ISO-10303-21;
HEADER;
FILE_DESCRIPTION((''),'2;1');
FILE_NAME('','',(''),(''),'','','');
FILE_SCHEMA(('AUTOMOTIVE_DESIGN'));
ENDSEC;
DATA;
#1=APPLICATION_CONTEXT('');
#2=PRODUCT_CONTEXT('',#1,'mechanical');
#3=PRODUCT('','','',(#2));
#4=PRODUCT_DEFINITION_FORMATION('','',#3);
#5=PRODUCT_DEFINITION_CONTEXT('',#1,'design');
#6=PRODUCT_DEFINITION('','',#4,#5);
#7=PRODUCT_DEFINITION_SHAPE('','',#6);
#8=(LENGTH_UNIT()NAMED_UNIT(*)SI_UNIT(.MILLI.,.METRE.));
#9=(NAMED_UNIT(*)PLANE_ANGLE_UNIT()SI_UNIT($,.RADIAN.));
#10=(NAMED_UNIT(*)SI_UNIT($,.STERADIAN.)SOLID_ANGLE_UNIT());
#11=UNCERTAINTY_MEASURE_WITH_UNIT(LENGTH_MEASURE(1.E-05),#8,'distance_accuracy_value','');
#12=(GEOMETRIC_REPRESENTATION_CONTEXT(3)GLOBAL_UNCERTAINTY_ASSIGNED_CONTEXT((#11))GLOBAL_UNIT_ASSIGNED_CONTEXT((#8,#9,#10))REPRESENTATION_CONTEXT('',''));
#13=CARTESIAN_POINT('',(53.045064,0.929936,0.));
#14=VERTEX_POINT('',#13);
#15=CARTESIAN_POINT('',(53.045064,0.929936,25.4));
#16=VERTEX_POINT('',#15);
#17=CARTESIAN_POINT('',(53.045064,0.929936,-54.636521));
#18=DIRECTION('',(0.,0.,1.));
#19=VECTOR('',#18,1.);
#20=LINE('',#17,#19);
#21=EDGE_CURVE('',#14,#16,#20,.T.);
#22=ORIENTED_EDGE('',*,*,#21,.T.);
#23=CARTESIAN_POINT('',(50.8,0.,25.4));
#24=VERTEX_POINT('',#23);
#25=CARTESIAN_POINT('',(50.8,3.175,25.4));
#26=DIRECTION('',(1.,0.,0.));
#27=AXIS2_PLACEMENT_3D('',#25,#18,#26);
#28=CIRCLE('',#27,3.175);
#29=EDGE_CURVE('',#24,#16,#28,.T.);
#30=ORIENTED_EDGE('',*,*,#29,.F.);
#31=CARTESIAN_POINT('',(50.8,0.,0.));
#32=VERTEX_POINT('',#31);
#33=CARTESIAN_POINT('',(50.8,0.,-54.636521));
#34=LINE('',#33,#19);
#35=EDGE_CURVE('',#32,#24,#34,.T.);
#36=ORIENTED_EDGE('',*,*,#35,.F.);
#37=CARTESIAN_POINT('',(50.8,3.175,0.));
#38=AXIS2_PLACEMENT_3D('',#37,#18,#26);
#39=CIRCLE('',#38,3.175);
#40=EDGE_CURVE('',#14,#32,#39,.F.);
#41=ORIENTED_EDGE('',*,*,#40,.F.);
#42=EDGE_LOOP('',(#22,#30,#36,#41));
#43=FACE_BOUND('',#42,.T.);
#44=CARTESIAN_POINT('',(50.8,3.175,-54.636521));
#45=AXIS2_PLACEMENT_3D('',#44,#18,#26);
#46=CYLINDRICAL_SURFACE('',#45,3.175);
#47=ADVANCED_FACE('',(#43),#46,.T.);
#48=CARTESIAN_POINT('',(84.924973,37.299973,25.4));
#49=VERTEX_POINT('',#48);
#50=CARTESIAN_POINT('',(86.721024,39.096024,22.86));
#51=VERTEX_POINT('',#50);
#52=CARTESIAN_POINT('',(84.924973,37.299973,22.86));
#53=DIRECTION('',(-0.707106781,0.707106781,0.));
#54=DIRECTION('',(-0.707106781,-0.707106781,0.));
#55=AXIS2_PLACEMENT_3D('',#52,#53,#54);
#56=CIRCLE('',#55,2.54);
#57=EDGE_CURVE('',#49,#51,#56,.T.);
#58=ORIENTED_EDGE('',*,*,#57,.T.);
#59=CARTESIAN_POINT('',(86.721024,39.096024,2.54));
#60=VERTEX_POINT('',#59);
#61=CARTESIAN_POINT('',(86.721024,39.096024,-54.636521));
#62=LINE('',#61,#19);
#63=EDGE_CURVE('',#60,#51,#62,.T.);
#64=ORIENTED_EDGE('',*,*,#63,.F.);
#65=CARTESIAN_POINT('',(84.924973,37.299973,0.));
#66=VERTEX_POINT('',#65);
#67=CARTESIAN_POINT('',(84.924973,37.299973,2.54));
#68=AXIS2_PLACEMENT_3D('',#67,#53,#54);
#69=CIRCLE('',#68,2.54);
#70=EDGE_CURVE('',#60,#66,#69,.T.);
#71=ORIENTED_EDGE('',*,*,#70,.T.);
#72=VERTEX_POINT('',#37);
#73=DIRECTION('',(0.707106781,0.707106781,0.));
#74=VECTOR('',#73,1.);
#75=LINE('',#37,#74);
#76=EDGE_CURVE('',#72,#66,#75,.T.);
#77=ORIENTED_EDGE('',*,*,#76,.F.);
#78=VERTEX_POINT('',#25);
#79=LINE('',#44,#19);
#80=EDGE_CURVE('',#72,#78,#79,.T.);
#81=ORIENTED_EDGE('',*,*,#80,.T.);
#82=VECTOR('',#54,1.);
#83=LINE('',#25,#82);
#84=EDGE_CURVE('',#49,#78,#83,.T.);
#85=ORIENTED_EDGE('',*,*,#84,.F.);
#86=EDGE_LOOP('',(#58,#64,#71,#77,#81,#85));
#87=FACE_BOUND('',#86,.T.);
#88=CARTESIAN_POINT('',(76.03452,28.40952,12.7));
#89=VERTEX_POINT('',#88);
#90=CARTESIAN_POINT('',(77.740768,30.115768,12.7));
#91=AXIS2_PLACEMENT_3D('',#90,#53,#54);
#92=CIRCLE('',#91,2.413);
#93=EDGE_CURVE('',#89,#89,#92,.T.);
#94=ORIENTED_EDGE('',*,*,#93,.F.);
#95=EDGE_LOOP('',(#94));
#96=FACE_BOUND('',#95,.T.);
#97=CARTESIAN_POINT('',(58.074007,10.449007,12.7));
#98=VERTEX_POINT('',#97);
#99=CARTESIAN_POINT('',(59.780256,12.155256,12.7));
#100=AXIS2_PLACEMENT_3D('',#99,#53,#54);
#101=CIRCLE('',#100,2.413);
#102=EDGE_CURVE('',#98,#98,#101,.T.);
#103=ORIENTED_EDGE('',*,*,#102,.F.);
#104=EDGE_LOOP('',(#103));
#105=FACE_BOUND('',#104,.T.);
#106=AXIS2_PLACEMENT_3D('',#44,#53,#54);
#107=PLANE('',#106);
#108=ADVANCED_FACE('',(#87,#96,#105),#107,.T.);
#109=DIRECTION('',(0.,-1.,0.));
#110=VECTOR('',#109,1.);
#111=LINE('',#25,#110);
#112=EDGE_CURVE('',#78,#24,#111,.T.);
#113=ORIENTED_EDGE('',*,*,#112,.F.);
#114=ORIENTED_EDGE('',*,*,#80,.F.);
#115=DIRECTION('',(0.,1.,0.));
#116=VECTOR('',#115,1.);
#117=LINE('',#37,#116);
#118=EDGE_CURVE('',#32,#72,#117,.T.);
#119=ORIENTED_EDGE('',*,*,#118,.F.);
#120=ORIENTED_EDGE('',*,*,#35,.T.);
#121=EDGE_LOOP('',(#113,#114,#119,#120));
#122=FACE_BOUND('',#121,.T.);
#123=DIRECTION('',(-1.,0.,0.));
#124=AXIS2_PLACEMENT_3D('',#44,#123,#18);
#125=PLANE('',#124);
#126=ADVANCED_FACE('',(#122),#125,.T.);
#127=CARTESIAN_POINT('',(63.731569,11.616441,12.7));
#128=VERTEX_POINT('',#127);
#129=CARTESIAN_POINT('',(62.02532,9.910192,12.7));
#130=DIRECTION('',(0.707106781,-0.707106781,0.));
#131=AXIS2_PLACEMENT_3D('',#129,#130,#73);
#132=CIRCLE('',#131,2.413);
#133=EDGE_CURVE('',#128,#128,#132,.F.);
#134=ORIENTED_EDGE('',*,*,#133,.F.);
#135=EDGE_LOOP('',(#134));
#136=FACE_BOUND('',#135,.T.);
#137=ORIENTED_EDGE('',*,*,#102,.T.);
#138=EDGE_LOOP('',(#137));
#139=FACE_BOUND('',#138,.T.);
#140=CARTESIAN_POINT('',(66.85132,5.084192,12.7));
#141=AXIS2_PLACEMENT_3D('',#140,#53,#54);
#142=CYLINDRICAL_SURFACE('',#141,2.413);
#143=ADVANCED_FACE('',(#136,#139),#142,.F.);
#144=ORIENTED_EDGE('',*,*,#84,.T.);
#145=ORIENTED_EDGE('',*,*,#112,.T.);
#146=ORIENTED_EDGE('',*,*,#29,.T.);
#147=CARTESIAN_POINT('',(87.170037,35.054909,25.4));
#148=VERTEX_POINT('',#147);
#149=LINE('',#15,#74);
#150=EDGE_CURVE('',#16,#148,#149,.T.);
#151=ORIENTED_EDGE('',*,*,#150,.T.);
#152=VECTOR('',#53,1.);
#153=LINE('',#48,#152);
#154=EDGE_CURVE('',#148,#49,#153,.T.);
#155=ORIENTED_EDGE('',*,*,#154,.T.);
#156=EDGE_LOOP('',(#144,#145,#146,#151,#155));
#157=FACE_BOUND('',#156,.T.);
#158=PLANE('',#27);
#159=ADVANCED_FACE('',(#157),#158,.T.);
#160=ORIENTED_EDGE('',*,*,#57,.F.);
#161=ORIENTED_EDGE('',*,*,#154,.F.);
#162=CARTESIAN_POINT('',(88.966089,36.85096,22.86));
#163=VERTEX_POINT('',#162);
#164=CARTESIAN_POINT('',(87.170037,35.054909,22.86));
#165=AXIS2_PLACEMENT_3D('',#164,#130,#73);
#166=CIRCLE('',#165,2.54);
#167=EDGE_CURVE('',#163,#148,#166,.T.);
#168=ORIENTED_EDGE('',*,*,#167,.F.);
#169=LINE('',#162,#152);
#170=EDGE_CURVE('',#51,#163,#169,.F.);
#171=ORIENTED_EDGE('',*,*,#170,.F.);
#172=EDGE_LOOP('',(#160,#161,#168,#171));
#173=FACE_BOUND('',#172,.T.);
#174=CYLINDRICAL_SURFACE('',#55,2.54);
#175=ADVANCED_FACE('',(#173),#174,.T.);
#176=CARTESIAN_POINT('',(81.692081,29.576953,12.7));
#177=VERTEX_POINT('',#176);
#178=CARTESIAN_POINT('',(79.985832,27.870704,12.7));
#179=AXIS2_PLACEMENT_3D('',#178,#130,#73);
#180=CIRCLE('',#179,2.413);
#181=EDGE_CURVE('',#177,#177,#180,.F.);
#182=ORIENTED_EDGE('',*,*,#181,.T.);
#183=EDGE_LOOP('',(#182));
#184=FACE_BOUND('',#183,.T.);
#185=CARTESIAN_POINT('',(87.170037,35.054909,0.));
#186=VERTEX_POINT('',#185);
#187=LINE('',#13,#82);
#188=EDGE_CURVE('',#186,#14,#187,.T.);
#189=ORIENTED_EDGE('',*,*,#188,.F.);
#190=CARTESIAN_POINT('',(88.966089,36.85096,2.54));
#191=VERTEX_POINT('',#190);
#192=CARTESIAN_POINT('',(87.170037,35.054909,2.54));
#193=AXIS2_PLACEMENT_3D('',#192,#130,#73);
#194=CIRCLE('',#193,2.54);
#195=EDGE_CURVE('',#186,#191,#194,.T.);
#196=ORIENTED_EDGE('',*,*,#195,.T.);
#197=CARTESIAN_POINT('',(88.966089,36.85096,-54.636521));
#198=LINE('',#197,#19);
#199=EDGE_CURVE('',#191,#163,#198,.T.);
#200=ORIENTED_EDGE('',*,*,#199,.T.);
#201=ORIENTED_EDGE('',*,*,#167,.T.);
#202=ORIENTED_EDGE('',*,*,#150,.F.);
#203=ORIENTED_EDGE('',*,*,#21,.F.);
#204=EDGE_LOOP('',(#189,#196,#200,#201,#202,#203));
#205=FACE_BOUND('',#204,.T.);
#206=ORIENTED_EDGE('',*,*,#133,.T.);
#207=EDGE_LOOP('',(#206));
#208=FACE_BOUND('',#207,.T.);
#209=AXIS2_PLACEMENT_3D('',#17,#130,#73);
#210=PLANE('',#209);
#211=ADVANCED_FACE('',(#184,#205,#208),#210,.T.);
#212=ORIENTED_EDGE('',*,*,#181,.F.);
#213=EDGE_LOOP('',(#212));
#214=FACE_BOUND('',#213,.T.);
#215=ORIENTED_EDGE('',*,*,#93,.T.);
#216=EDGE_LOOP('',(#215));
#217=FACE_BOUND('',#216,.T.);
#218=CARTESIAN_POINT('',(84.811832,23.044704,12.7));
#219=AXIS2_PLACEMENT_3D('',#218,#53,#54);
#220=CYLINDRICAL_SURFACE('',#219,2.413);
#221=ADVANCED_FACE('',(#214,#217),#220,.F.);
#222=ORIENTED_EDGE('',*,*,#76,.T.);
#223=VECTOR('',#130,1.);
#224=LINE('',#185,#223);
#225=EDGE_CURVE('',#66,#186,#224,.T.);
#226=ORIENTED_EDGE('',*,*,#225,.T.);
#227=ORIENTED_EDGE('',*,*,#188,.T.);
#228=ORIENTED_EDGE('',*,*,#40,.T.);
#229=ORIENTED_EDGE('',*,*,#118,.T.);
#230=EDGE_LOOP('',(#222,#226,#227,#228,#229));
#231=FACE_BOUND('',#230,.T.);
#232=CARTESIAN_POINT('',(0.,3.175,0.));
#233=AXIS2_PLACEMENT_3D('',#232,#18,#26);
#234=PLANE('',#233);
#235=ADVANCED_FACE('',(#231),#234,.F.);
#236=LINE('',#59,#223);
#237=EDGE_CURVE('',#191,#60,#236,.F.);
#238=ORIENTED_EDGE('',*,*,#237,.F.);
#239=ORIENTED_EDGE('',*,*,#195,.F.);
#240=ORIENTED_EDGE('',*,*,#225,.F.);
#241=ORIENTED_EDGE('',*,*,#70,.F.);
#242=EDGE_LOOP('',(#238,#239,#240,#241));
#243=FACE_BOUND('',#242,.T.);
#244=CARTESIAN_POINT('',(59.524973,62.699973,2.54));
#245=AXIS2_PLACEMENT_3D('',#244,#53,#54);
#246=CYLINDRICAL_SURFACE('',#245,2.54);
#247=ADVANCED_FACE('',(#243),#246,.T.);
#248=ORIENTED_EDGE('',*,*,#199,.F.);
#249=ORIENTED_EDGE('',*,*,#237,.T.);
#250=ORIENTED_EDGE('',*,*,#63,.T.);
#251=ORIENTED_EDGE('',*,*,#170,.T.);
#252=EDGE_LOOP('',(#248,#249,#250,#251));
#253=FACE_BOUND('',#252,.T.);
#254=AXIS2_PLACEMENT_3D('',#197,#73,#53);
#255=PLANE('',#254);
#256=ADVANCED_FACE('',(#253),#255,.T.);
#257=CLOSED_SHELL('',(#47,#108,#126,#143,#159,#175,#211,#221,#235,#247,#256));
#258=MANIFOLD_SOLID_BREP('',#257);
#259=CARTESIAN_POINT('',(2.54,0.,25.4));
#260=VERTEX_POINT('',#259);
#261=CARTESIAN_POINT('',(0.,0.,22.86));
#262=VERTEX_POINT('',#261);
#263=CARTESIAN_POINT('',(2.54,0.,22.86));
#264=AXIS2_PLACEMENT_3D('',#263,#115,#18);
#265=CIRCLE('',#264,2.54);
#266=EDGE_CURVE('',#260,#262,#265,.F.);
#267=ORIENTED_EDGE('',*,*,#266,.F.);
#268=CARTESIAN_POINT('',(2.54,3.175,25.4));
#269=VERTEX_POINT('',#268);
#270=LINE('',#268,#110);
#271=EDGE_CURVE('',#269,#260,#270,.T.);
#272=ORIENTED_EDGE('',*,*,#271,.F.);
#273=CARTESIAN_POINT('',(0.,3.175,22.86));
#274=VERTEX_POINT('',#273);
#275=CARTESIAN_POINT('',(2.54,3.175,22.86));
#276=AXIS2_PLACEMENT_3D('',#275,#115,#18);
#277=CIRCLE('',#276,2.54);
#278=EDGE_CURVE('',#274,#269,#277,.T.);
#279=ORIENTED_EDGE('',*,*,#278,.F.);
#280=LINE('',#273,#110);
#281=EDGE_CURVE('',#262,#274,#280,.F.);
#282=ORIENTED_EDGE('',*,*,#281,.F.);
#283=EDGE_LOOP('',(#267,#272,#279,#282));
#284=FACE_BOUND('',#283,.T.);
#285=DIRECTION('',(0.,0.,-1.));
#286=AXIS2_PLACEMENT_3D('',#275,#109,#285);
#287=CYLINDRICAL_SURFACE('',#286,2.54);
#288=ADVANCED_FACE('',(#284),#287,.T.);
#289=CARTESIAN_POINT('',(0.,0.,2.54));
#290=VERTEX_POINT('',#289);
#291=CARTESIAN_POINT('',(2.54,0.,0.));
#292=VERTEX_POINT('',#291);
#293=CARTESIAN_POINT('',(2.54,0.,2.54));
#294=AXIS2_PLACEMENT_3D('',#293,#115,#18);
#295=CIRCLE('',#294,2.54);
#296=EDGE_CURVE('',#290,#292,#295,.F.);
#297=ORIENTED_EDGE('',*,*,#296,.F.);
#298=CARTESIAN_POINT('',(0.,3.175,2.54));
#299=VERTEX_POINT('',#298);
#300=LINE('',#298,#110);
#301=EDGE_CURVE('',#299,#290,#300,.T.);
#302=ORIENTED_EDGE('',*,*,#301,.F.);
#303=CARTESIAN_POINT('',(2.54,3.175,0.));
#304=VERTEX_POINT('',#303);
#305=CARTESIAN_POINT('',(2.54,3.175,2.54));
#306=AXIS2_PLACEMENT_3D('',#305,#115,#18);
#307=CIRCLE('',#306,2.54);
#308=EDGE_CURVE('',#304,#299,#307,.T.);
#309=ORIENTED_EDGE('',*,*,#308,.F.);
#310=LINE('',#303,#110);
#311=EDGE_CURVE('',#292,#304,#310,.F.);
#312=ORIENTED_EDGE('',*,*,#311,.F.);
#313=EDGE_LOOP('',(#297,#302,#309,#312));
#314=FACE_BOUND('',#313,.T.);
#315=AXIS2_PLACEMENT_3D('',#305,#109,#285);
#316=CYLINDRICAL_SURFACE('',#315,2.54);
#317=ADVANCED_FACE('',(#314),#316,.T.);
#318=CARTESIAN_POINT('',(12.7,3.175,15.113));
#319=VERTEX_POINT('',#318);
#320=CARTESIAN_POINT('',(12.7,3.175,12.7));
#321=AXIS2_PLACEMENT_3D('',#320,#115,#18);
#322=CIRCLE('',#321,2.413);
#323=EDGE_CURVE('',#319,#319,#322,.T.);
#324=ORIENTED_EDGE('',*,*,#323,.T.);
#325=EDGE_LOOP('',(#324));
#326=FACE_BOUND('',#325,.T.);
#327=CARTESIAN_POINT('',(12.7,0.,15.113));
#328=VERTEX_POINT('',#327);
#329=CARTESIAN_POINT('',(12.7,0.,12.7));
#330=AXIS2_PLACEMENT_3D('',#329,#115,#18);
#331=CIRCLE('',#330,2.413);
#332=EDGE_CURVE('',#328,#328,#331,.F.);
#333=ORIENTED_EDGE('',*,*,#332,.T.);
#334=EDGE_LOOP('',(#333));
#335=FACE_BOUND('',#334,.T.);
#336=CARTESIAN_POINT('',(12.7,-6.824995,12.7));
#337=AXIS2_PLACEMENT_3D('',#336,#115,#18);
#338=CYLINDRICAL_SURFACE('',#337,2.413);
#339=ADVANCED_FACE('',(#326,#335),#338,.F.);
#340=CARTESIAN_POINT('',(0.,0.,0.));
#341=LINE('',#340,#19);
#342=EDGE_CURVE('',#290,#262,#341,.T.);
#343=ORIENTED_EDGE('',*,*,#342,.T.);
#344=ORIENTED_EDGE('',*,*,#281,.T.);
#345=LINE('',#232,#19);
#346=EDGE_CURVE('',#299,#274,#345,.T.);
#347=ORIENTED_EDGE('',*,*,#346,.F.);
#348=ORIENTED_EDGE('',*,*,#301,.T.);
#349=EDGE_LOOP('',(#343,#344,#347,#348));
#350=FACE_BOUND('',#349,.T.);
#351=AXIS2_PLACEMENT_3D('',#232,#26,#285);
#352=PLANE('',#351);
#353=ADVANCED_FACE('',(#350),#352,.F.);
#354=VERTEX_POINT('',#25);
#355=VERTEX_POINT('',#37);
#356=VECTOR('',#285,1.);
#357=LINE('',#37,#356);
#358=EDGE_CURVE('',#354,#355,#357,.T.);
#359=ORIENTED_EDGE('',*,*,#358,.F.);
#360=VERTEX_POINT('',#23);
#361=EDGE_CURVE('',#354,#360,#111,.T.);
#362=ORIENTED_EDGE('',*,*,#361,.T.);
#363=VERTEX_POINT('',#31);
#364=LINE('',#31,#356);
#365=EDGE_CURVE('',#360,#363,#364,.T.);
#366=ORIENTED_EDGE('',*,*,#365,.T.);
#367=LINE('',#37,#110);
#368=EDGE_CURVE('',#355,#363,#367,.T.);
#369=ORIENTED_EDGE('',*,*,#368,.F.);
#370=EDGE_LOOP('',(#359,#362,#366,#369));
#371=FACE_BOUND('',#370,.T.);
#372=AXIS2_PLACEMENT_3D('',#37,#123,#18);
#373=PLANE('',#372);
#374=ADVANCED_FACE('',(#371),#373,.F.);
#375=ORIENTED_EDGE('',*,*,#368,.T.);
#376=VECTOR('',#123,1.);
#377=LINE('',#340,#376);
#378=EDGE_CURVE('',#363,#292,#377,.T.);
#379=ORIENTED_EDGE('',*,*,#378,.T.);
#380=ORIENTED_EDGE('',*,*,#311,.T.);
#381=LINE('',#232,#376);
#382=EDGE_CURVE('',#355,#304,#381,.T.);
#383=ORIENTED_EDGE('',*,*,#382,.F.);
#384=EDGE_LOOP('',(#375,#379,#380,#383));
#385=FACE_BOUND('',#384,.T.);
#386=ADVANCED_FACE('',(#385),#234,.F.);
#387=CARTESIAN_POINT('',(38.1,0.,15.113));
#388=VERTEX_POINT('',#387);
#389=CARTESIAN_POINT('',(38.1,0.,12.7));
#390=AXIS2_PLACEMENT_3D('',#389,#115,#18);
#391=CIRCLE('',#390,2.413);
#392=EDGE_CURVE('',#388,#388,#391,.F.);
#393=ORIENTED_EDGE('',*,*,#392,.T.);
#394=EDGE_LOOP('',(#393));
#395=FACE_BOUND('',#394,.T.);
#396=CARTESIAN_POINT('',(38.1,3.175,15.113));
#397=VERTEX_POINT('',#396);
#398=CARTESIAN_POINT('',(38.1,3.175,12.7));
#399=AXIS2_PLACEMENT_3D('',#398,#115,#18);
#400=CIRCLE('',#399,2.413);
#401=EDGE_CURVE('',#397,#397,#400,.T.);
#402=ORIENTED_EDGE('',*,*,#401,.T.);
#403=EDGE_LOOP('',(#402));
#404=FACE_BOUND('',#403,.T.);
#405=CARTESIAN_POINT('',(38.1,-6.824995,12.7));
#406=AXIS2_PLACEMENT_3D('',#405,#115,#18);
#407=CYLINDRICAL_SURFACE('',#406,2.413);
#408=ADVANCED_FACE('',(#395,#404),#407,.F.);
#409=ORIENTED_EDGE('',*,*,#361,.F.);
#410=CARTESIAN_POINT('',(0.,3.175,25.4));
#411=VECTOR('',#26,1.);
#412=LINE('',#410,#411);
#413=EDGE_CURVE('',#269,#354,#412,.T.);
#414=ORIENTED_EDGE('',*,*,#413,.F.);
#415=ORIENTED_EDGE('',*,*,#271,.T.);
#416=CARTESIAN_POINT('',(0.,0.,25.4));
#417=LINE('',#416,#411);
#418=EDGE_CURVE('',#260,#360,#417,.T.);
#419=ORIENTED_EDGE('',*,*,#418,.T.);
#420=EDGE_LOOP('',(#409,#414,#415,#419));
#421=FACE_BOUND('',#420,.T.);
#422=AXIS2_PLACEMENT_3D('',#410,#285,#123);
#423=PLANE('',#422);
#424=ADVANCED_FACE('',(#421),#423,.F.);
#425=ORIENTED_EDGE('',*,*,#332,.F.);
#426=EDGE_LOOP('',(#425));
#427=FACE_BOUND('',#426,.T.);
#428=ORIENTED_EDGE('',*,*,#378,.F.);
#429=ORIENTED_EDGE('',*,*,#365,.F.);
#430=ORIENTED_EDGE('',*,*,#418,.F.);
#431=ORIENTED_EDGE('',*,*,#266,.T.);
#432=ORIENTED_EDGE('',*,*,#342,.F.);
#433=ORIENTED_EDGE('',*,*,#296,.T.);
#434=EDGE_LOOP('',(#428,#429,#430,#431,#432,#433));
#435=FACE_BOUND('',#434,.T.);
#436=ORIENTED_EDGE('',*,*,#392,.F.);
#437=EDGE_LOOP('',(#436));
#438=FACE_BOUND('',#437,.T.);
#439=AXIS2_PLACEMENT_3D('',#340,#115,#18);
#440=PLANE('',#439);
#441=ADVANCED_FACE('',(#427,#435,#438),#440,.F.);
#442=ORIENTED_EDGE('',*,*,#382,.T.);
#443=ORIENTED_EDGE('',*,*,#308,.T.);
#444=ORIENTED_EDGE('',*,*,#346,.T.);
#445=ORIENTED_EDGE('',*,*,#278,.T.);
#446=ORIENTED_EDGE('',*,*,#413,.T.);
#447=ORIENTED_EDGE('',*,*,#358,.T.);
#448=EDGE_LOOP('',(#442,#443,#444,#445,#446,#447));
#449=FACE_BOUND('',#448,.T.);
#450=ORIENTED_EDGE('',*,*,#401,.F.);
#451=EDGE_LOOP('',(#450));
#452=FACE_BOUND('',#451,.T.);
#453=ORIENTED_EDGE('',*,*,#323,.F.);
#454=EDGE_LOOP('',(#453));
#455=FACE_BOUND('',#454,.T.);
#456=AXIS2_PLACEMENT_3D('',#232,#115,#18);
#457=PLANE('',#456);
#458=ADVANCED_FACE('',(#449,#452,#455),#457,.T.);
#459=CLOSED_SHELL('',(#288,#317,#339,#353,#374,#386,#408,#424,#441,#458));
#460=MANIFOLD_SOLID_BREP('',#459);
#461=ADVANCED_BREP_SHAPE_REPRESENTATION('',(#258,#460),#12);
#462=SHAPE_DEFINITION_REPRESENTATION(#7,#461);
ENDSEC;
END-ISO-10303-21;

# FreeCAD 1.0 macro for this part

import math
import FreeCAD as App
import Part
import Sketcher
from FreeCAD import Vector
Q = App.Units.Quantity


def edges_at(feature, points):
    """Names of the edges that pass closest to the given points."""
    edges = feature.Shape.Edges
    near = lambda p: min(range(len(edges)), key=lambda i: edges[i].distToShape(Part.Vertex(*p))[0])
    return sorted({f"Edge{near(p) + 1}" for p in points})


def add_polygon(sketch, points):
    """Adds a closed chain of lines whose ends are joined by coincident constraints."""
    first, n = sketch.GeometryCount, len(points)
    for a, b in zip(points, points[1:] + points[:1]):
        sketch.addGeometry(Part.LineSegment(App.Vector(*a, 0), App.Vector(*b, 0)), False)
    for i in range(n):
        sketch.addConstraint(Sketcher.Constraint("Coincident", first + i, 2, first + (i + 1) % n, 1))

doc = App.newDocument("Part")
body = doc.addObject("PartDesign::Body", "Body")

sketch1 = doc.addObject("Sketcher::SketchObject", "Sketch")
body.addObject(sketch1)
sketch1.AttachmentSupport = (doc.XZ_Plane, [""])
sketch1.MapMode = "FlatFace"
add_polygon(sketch1, [(0, 0), (0, 25), (51, 25), (51, 0)])
sketch1.addConstraint([
    Sketcher.Constraint("Vertical", 0),
    Sketcher.Constraint("Horizontal", 1),
    Sketcher.Constraint("Vertical", 2),
    Sketcher.Constraint("Horizontal", 3),
    Sketcher.Constraint("Coincident", 3, 2, -1, 1),
    Sketcher.Constraint("DistanceX", 1, 1, 1, 2, Q("2 in")),
    Sketcher.Constraint("DistanceY", 0, 1, 0, 2, Q("1 in")),
])
pad1 = doc.addObject("PartDesign::Pad", "Pad")
body.addObject(pad1)
pad1.Profile = sketch1
pad1.Length = Q("0.125 in")
pad1.Reversed = True

sketch2 = doc.addObject("Sketcher::SketchObject", "Sketch001")
body.addObject(sketch2)
sketch2.AttachmentSupport = (doc.XZ_Plane, [""])
sketch2.MapMode = "FlatFace"
sketch2.AttachmentOffset = App.Placement(Vector(0, 0, -0.125 * 25.4), App.Rotation())
sketch2.addGeometry([
    Part.Circle(Vector(38.1, 12.7, 0), Vector(0, 0, 1), 2.4),
    Part.Circle(Vector(12.7, 12.7, 0), Vector(0, 0, 1), 2.4),
], False)
sketch2.addConstraint([
    Sketcher.Constraint("Equal", 0, 1),
    Sketcher.Constraint("Horizontal", 0, 3, 1, 3),
    Sketcher.Constraint("Diameter", 0, Q("0.19 in")),
    Sketcher.Constraint("DistanceX", 1, 3, 0, 3, Q("1 in")),
    Sketcher.Constraint("DistanceX", -1, 1, 0, 3, Q("1.5 in")),
    Sketcher.Constraint("DistanceY", -1, 1, 0, 3, Q("0.5 in")),
])
pocket1 = doc.addObject("PartDesign::Pocket", "Pocket")
body.addObject(pocket1)
pocket1.Profile = sketch2
pocket1.Length = Q("0.125 in")
pocket1.Reversed = True
doc.recompute()

fillet = doc.addObject("PartDesign::Fillet", "Fillet")
body.addObject(fillet)
fillet.Base = (pocket1, edges_at(pocket1, [(0, 1.587, 0), (0, 1.587, 25.4)]))
fillet.Radius = Q("0.1 in")
body2 = doc.addObject("PartDesign::Body", "Body001")

sketch3 = doc.addObject("Sketcher::SketchObject", "Sketch002")
body2.addObject(sketch3)
sketch3.AttachmentSupport = (doc.getObject("XY_Plane001"), [""])
sketch3.MapMode = "FlatFace"
sketch3.AttachmentOffset = App.Placement(Vector(0, 0, 1 * 25.4), App.Rotation())
sketch3.addGeometry([
    Part.LineSegment(Vector(86.7, 39.1, 0), Vector(50.8, 3.2, 0)),
    Part.LineSegment(Vector(50.8, 3.2, 0), Vector(50.8, 0, 0)),
    Part.ArcOfCircle(Part.Circle(Vector(50.8, 3.2, 0), Vector(0, 0, 1), 3.2), math.radians(-90), math.radians(-45)),
    Part.LineSegment(Vector(53, 0.9, 0), Vector(89, 36.9, 0)),
    Part.LineSegment(Vector(89, 36.9, 0), Vector(86.7, 39.1, 0)),
], False)
sketch3.addConstraint([
    Sketcher.Constraint("Coincident", 0, 2, 1, 1),
    Sketcher.Constraint("Coincident", 1, 2, 2, 1),
    Sketcher.Constraint("Tangent", 2, 2, 3, 1),
    Sketcher.Constraint("Coincident", 3, 2, 4, 1),
    Sketcher.Constraint("Coincident", 4, 2, 0, 1),
    Sketcher.Constraint("Vertical", 1),
    Sketcher.Constraint("Coincident", 0, 2, 2, 3),
    Sketcher.Constraint("PointOnObject", 1, 2, -1),
    Sketcher.Constraint("Parallel", 0, 3),
    Sketcher.Constraint("Perpendicular", 3, 4),
    Sketcher.Constraint("Distance", 0, Q("2 in")),
    Sketcher.Constraint("DistanceX", -1, 1, 2, 3, Q("2 in")),
    Sketcher.Constraint("Angle", 0, Q("-135 deg")),
    Sketcher.Constraint("Radius", 2, Q("0.125 in")),
])
pad2 = doc.addObject("PartDesign::Pad", "Pad001")
body2.addObject(pad2)
pad2.Profile = sketch3
pad2.Length = Q("1 in")
pad2.Reversed = True

sketch4 = doc.addObject("Sketcher::SketchObject", "Sketch003")
body2.addObject(sketch4)
sketch4.Placement = App.Placement(Vector(23.8125, -23.8125, 0), App.Rotation(Vector(0, 0, 1), Vector(0.707106781, 0.707106781, 0), Vector(-0.707106781, 0.707106781, 0), "ZXY"))
sketch4.addGeometry([
    Part.Circle(Vector(12.7, 50.9, 0), Vector(0, 0, 1), 2.4),
    Part.Circle(Vector(12.7, 76.3, 0), Vector(0, 0, 1), 2.4),
], False)
sketch4.addConstraint([
    Sketcher.Constraint("Equal", 0, 1),
    Sketcher.Constraint("Vertical", 0, 3, 1, 3),
    Sketcher.Constraint("Diameter", 0, Q("0.19 in")),
    Sketcher.Constraint("DistanceY", 0, 3, 1, 3, Q("1 in")),
    Sketcher.Constraint("DistanceX", -1, 1, 0, 3, Q("0.5 in")),
    Sketcher.Constraint("DistanceY", -1, 1, 0, 3, Q("50.866088 mm")),
])
pocket2 = doc.addObject("PartDesign::Pocket", "Pocket001")
body2.addObject(pocket2)
pocket2.Profile = sketch4
pocket2.Length = Q("0.125 in")
doc.recompute()

fillet2 = doc.addObject("PartDesign::Fillet", "Fillet001")
body2.addObject(fillet2)
fillet2.Base = (pocket2, edges_at(pocket2, [(87.844, 37.973, 0), (87.844, 37.973, 25.4)]))
fillet2.Radius = Q("0.1 in")

doc.recompute()
